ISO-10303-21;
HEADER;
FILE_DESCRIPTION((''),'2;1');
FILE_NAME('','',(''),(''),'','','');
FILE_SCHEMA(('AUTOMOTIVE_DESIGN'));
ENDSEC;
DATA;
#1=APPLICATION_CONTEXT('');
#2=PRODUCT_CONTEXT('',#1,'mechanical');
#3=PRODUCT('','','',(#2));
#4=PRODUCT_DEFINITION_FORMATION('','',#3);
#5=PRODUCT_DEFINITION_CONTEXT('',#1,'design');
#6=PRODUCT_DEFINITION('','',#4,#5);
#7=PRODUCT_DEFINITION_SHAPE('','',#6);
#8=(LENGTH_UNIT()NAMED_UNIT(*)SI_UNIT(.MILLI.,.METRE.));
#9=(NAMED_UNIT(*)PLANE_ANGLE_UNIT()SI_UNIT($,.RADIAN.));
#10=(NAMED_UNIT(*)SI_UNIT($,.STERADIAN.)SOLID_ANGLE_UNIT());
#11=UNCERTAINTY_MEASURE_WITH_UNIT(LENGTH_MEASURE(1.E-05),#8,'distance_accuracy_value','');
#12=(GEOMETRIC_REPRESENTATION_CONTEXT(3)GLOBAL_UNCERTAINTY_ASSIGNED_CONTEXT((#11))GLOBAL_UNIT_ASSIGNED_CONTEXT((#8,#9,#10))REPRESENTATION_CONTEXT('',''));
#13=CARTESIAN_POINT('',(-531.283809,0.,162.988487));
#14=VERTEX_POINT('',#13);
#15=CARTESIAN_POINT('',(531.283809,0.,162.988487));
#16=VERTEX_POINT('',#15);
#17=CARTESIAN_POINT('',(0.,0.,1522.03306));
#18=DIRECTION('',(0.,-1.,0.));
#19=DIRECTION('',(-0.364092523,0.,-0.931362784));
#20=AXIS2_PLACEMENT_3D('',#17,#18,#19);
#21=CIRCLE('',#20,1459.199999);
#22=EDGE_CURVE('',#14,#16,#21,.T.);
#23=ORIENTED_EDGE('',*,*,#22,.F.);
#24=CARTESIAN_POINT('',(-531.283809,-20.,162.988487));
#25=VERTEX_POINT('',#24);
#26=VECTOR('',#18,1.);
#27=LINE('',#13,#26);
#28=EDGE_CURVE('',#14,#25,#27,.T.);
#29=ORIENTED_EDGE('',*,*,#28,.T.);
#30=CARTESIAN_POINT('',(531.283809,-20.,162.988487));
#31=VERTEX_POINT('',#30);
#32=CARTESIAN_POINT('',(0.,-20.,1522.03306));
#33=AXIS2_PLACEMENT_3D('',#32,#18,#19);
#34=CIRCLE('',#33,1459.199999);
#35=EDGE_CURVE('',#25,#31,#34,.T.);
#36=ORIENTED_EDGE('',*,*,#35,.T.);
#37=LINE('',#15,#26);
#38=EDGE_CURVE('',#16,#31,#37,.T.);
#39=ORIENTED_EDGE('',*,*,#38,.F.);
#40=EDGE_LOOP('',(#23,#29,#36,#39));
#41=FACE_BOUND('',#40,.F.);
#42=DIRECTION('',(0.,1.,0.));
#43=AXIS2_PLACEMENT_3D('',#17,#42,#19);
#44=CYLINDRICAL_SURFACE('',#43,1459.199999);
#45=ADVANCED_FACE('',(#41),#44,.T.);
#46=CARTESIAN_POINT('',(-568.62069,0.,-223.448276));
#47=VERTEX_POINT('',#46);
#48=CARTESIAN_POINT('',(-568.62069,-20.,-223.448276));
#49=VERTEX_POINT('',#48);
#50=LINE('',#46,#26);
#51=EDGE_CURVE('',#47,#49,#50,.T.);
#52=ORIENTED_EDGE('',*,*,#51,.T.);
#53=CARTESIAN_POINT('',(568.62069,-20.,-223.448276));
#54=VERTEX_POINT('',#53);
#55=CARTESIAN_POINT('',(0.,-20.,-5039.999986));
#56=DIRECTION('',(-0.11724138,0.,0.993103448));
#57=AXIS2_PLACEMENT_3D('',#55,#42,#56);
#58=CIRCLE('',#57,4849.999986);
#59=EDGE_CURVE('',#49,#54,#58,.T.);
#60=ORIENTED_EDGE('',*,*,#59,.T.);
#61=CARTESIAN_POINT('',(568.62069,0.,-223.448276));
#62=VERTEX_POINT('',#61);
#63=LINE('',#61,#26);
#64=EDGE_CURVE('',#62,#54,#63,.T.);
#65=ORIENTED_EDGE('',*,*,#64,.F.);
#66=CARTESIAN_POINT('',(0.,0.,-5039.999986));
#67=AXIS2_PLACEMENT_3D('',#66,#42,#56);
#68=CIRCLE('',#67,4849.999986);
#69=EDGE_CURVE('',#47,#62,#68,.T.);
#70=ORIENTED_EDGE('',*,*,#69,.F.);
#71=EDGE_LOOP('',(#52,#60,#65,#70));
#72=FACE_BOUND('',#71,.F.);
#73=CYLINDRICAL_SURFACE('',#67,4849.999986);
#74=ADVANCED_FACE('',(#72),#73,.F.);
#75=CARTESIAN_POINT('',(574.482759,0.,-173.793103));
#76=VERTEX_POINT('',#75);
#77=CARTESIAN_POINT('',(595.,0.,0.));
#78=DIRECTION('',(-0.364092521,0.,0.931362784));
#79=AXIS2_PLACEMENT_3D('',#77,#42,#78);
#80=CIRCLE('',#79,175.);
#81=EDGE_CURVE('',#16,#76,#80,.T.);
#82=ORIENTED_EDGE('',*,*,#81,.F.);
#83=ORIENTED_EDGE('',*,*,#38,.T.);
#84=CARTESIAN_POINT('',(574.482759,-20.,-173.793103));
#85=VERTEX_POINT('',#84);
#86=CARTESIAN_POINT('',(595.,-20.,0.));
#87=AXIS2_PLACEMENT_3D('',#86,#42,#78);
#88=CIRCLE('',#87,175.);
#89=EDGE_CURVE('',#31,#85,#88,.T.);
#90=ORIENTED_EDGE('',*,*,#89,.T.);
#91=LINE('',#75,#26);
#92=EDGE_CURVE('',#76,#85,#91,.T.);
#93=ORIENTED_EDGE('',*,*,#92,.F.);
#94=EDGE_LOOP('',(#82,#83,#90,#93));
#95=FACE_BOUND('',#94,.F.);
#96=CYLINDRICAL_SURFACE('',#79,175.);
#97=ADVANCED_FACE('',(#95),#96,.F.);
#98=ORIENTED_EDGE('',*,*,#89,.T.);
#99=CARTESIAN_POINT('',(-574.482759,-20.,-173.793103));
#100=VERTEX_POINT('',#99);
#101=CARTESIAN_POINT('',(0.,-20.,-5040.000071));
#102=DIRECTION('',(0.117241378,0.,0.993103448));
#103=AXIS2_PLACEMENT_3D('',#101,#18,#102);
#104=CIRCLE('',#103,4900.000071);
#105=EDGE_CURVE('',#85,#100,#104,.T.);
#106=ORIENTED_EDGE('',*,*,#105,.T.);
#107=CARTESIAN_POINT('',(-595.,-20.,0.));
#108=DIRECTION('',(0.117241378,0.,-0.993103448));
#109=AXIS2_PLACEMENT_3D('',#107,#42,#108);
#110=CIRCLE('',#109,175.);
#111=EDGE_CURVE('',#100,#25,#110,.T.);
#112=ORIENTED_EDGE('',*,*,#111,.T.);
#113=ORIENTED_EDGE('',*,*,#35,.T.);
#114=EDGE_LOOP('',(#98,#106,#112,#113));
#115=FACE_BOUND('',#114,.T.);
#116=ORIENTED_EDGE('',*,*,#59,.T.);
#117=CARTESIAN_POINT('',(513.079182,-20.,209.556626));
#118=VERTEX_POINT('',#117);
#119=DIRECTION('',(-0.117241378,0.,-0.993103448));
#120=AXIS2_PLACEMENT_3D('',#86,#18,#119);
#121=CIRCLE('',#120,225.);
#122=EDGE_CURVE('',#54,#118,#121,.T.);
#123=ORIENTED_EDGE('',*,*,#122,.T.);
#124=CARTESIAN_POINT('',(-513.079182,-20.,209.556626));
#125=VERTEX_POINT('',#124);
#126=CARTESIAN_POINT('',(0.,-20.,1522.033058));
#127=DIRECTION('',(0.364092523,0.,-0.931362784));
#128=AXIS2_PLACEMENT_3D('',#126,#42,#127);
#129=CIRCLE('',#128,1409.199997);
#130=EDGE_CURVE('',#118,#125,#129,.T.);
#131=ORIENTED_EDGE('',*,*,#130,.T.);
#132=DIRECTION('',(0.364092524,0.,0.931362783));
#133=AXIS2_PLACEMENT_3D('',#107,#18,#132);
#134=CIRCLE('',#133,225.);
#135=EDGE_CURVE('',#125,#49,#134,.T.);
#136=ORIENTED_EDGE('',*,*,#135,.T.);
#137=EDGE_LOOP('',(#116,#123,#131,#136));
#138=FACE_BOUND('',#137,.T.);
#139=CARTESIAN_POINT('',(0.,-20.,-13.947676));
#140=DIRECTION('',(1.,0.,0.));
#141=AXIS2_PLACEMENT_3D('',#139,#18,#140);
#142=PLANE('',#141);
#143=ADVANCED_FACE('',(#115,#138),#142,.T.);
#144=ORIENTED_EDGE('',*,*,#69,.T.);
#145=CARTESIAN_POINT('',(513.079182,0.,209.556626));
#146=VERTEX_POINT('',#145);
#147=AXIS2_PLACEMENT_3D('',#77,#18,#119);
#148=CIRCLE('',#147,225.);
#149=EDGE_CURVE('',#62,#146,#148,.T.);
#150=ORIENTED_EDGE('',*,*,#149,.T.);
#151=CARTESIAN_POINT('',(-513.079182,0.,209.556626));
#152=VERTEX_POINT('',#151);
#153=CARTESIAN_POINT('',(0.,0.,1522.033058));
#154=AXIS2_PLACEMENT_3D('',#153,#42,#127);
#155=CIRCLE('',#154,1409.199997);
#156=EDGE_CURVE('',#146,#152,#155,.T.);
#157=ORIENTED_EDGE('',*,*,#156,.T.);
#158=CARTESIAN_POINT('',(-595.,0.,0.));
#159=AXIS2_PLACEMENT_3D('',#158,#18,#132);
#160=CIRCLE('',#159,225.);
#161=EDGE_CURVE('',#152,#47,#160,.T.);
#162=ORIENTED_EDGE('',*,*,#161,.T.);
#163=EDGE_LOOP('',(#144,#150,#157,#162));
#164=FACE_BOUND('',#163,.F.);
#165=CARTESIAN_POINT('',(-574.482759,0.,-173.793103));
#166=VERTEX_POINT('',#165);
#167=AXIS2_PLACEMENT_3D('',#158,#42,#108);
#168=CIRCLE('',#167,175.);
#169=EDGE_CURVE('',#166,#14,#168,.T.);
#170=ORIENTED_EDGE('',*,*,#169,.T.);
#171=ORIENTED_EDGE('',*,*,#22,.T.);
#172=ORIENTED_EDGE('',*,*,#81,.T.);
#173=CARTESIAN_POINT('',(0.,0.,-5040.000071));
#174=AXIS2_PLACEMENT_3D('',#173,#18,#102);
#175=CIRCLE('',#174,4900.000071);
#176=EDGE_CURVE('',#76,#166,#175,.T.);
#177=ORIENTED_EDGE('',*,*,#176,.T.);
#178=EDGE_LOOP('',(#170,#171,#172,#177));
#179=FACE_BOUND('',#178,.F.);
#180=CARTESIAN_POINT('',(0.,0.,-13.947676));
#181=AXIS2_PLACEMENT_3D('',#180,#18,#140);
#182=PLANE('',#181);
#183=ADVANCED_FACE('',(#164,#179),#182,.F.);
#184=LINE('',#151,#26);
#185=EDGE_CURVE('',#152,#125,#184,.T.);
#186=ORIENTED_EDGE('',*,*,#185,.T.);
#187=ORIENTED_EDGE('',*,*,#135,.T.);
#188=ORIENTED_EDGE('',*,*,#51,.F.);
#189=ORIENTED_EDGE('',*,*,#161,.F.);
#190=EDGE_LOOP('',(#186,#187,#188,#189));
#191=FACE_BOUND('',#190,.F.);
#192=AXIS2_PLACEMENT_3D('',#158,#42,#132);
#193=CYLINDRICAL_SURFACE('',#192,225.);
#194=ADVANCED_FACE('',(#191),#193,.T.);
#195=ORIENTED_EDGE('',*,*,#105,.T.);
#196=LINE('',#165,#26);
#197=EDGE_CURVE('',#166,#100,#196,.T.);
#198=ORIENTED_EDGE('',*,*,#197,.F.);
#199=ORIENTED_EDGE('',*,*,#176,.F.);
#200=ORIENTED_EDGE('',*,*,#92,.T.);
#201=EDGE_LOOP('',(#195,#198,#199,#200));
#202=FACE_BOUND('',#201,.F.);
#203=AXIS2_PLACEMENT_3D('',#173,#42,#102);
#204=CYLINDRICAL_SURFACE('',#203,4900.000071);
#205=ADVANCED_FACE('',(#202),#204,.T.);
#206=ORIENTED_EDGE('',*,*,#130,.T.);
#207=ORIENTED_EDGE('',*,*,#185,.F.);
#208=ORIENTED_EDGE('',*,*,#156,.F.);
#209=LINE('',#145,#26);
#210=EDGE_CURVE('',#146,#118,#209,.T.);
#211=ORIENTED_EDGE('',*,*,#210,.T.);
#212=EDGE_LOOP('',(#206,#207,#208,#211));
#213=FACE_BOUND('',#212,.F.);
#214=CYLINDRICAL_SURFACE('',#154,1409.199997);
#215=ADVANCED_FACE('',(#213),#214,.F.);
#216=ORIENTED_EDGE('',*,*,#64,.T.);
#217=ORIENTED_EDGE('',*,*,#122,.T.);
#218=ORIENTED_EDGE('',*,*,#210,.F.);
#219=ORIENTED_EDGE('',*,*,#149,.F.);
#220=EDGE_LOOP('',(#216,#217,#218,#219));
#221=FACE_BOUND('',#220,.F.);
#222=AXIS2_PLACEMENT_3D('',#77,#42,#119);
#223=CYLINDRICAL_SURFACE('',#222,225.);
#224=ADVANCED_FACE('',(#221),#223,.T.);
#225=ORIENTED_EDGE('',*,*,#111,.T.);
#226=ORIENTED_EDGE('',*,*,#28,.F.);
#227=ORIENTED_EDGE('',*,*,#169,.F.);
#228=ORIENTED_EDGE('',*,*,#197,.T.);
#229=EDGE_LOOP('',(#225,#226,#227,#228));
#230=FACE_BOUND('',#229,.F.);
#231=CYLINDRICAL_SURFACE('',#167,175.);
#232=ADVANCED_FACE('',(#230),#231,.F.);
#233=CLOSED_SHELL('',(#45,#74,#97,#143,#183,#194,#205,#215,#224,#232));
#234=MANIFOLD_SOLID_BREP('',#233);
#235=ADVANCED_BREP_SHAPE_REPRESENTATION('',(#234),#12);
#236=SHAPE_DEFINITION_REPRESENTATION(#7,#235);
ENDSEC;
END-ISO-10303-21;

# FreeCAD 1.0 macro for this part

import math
import FreeCAD as App
import Part
import Sketcher

V = App.Vector
Q = App.Units.Quantity

doc = App.newDocument("Part")
params = doc.addObject("Spreadsheet::Sheet", "Params")
for row, (alias, value) in enumerate([
    ("sketch1_radius", "225 mm"),
    ("sketch1_radius2", "175 mm"),
    ("sketch1_radius3", "1459.199999 mm"),
    ("pad1_length", "20 mm"),
], start=1):
    params.set(f"A{row}", alias)
    params.set(f"B{row}", "=" + value)
    params.setAlias(f"B{row}", alias)

body = doc.addObject("PartDesign::Body", "Body")

sketch1 = body.newObject("Sketcher::SketchObject", "Sketch")
sketch1.AttachmentSupport = (doc.getObject("XZ_Plane"), [""])
sketch1.MapMode = "FlatFace"
sketch1.addGeometry([
    Part.ArcOfCircle(Part.Circle(V(0, 1522, 0), V(0, 0, 1), 1409), math.radians(-111), math.radians(-69)),
    Part.ArcOfCircle(Part.Circle(V(-595, 0, 0), V(0, 0, 1), 225), math.radians(69), math.radians(277)),
    Part.ArcOfCircle(Part.Circle(V(0, -5040, 0), V(0, 0, 1), 4850), math.radians(83.27), math.radians(96.73)),
    Part.ArcOfCircle(Part.Circle(V(595, 0, 0), V(0, 0, 1), 225), math.radians(-97), math.radians(111)),
    Part.ArcOfCircle(Part.Circle(V(0, -5040, 0), V(0, 0, 1), 4900), math.radians(83.27), math.radians(96.73)),
    Part.ArcOfCircle(Part.Circle(V(-595, 0, 0), V(0, 0, 1), 175), math.radians(69), math.radians(277)),
    Part.ArcOfCircle(Part.Circle(V(0, 1522, 0), V(0, 0, 1), 1459), math.radians(-111), math.radians(-69)),
    Part.ArcOfCircle(Part.Circle(V(595, 0, 0), V(0, 0, 1), 175), math.radians(-97), math.radians(111)),
], False)
sketch1.addConstraint([
    Sketcher.Constraint("Tangent", 0, 1, 1, 1),
    Sketcher.Constraint("Tangent", 1, 2, 2, 2),
    Sketcher.Constraint("Tangent", 2, 1, 3, 1),
    Sketcher.Constraint("Tangent", 3, 2, 0, 2),
    Sketcher.Constraint("Tangent", 4, 2, 5, 2),
    Sketcher.Constraint("Tangent", 5, 1, 6, 1),
    Sketcher.Constraint("Tangent", 6, 2, 7, 2),
    Sketcher.Constraint("Tangent", 7, 1, 4, 1),
    Sketcher.Constraint("Coincident", 5, 3, 1, 3),
    Sketcher.Constraint("Coincident", 6, 3, 0, 3),
    Sketcher.Constraint("Coincident", 7, 3, 3, 3),
    Sketcher.Constraint("Equal", 1, 3),
    Sketcher.Constraint("Symmetric", 1, 3, 3, 3, -1, 1),
    Sketcher.Constraint("PointOnObject", 0, 3, -2),
    Sketcher.Constraint("Radius", 1, Q("225 mm")),
    Sketcher.Constraint("Radius", 5, Q("175 mm")),
    Sketcher.Constraint("Radius", 6, Q("1459.199999 mm")),
    Sketcher.Constraint("DistanceX", 1, 3, -1, 1, Q("595 mm")),
    Sketcher.Constraint("Radius", 4, Q("4900.000071 mm")),
    Sketcher.Constraint("Radius", 2, Q("4849.999986 mm")),
])
sketch1.setExpression("Constraints[14]", "Params.sketch1_radius")
sketch1.setExpression("Constraints[15]", "Params.sketch1_radius2")
sketch1.setExpression("Constraints[16]", "Params.sketch1_radius3")
pad1 = body.newObject("PartDesign::Pad", "Pad")
pad1.Profile = sketch1
pad1.setExpression("Length", "Params.pad1_length")

doc.recompute()
